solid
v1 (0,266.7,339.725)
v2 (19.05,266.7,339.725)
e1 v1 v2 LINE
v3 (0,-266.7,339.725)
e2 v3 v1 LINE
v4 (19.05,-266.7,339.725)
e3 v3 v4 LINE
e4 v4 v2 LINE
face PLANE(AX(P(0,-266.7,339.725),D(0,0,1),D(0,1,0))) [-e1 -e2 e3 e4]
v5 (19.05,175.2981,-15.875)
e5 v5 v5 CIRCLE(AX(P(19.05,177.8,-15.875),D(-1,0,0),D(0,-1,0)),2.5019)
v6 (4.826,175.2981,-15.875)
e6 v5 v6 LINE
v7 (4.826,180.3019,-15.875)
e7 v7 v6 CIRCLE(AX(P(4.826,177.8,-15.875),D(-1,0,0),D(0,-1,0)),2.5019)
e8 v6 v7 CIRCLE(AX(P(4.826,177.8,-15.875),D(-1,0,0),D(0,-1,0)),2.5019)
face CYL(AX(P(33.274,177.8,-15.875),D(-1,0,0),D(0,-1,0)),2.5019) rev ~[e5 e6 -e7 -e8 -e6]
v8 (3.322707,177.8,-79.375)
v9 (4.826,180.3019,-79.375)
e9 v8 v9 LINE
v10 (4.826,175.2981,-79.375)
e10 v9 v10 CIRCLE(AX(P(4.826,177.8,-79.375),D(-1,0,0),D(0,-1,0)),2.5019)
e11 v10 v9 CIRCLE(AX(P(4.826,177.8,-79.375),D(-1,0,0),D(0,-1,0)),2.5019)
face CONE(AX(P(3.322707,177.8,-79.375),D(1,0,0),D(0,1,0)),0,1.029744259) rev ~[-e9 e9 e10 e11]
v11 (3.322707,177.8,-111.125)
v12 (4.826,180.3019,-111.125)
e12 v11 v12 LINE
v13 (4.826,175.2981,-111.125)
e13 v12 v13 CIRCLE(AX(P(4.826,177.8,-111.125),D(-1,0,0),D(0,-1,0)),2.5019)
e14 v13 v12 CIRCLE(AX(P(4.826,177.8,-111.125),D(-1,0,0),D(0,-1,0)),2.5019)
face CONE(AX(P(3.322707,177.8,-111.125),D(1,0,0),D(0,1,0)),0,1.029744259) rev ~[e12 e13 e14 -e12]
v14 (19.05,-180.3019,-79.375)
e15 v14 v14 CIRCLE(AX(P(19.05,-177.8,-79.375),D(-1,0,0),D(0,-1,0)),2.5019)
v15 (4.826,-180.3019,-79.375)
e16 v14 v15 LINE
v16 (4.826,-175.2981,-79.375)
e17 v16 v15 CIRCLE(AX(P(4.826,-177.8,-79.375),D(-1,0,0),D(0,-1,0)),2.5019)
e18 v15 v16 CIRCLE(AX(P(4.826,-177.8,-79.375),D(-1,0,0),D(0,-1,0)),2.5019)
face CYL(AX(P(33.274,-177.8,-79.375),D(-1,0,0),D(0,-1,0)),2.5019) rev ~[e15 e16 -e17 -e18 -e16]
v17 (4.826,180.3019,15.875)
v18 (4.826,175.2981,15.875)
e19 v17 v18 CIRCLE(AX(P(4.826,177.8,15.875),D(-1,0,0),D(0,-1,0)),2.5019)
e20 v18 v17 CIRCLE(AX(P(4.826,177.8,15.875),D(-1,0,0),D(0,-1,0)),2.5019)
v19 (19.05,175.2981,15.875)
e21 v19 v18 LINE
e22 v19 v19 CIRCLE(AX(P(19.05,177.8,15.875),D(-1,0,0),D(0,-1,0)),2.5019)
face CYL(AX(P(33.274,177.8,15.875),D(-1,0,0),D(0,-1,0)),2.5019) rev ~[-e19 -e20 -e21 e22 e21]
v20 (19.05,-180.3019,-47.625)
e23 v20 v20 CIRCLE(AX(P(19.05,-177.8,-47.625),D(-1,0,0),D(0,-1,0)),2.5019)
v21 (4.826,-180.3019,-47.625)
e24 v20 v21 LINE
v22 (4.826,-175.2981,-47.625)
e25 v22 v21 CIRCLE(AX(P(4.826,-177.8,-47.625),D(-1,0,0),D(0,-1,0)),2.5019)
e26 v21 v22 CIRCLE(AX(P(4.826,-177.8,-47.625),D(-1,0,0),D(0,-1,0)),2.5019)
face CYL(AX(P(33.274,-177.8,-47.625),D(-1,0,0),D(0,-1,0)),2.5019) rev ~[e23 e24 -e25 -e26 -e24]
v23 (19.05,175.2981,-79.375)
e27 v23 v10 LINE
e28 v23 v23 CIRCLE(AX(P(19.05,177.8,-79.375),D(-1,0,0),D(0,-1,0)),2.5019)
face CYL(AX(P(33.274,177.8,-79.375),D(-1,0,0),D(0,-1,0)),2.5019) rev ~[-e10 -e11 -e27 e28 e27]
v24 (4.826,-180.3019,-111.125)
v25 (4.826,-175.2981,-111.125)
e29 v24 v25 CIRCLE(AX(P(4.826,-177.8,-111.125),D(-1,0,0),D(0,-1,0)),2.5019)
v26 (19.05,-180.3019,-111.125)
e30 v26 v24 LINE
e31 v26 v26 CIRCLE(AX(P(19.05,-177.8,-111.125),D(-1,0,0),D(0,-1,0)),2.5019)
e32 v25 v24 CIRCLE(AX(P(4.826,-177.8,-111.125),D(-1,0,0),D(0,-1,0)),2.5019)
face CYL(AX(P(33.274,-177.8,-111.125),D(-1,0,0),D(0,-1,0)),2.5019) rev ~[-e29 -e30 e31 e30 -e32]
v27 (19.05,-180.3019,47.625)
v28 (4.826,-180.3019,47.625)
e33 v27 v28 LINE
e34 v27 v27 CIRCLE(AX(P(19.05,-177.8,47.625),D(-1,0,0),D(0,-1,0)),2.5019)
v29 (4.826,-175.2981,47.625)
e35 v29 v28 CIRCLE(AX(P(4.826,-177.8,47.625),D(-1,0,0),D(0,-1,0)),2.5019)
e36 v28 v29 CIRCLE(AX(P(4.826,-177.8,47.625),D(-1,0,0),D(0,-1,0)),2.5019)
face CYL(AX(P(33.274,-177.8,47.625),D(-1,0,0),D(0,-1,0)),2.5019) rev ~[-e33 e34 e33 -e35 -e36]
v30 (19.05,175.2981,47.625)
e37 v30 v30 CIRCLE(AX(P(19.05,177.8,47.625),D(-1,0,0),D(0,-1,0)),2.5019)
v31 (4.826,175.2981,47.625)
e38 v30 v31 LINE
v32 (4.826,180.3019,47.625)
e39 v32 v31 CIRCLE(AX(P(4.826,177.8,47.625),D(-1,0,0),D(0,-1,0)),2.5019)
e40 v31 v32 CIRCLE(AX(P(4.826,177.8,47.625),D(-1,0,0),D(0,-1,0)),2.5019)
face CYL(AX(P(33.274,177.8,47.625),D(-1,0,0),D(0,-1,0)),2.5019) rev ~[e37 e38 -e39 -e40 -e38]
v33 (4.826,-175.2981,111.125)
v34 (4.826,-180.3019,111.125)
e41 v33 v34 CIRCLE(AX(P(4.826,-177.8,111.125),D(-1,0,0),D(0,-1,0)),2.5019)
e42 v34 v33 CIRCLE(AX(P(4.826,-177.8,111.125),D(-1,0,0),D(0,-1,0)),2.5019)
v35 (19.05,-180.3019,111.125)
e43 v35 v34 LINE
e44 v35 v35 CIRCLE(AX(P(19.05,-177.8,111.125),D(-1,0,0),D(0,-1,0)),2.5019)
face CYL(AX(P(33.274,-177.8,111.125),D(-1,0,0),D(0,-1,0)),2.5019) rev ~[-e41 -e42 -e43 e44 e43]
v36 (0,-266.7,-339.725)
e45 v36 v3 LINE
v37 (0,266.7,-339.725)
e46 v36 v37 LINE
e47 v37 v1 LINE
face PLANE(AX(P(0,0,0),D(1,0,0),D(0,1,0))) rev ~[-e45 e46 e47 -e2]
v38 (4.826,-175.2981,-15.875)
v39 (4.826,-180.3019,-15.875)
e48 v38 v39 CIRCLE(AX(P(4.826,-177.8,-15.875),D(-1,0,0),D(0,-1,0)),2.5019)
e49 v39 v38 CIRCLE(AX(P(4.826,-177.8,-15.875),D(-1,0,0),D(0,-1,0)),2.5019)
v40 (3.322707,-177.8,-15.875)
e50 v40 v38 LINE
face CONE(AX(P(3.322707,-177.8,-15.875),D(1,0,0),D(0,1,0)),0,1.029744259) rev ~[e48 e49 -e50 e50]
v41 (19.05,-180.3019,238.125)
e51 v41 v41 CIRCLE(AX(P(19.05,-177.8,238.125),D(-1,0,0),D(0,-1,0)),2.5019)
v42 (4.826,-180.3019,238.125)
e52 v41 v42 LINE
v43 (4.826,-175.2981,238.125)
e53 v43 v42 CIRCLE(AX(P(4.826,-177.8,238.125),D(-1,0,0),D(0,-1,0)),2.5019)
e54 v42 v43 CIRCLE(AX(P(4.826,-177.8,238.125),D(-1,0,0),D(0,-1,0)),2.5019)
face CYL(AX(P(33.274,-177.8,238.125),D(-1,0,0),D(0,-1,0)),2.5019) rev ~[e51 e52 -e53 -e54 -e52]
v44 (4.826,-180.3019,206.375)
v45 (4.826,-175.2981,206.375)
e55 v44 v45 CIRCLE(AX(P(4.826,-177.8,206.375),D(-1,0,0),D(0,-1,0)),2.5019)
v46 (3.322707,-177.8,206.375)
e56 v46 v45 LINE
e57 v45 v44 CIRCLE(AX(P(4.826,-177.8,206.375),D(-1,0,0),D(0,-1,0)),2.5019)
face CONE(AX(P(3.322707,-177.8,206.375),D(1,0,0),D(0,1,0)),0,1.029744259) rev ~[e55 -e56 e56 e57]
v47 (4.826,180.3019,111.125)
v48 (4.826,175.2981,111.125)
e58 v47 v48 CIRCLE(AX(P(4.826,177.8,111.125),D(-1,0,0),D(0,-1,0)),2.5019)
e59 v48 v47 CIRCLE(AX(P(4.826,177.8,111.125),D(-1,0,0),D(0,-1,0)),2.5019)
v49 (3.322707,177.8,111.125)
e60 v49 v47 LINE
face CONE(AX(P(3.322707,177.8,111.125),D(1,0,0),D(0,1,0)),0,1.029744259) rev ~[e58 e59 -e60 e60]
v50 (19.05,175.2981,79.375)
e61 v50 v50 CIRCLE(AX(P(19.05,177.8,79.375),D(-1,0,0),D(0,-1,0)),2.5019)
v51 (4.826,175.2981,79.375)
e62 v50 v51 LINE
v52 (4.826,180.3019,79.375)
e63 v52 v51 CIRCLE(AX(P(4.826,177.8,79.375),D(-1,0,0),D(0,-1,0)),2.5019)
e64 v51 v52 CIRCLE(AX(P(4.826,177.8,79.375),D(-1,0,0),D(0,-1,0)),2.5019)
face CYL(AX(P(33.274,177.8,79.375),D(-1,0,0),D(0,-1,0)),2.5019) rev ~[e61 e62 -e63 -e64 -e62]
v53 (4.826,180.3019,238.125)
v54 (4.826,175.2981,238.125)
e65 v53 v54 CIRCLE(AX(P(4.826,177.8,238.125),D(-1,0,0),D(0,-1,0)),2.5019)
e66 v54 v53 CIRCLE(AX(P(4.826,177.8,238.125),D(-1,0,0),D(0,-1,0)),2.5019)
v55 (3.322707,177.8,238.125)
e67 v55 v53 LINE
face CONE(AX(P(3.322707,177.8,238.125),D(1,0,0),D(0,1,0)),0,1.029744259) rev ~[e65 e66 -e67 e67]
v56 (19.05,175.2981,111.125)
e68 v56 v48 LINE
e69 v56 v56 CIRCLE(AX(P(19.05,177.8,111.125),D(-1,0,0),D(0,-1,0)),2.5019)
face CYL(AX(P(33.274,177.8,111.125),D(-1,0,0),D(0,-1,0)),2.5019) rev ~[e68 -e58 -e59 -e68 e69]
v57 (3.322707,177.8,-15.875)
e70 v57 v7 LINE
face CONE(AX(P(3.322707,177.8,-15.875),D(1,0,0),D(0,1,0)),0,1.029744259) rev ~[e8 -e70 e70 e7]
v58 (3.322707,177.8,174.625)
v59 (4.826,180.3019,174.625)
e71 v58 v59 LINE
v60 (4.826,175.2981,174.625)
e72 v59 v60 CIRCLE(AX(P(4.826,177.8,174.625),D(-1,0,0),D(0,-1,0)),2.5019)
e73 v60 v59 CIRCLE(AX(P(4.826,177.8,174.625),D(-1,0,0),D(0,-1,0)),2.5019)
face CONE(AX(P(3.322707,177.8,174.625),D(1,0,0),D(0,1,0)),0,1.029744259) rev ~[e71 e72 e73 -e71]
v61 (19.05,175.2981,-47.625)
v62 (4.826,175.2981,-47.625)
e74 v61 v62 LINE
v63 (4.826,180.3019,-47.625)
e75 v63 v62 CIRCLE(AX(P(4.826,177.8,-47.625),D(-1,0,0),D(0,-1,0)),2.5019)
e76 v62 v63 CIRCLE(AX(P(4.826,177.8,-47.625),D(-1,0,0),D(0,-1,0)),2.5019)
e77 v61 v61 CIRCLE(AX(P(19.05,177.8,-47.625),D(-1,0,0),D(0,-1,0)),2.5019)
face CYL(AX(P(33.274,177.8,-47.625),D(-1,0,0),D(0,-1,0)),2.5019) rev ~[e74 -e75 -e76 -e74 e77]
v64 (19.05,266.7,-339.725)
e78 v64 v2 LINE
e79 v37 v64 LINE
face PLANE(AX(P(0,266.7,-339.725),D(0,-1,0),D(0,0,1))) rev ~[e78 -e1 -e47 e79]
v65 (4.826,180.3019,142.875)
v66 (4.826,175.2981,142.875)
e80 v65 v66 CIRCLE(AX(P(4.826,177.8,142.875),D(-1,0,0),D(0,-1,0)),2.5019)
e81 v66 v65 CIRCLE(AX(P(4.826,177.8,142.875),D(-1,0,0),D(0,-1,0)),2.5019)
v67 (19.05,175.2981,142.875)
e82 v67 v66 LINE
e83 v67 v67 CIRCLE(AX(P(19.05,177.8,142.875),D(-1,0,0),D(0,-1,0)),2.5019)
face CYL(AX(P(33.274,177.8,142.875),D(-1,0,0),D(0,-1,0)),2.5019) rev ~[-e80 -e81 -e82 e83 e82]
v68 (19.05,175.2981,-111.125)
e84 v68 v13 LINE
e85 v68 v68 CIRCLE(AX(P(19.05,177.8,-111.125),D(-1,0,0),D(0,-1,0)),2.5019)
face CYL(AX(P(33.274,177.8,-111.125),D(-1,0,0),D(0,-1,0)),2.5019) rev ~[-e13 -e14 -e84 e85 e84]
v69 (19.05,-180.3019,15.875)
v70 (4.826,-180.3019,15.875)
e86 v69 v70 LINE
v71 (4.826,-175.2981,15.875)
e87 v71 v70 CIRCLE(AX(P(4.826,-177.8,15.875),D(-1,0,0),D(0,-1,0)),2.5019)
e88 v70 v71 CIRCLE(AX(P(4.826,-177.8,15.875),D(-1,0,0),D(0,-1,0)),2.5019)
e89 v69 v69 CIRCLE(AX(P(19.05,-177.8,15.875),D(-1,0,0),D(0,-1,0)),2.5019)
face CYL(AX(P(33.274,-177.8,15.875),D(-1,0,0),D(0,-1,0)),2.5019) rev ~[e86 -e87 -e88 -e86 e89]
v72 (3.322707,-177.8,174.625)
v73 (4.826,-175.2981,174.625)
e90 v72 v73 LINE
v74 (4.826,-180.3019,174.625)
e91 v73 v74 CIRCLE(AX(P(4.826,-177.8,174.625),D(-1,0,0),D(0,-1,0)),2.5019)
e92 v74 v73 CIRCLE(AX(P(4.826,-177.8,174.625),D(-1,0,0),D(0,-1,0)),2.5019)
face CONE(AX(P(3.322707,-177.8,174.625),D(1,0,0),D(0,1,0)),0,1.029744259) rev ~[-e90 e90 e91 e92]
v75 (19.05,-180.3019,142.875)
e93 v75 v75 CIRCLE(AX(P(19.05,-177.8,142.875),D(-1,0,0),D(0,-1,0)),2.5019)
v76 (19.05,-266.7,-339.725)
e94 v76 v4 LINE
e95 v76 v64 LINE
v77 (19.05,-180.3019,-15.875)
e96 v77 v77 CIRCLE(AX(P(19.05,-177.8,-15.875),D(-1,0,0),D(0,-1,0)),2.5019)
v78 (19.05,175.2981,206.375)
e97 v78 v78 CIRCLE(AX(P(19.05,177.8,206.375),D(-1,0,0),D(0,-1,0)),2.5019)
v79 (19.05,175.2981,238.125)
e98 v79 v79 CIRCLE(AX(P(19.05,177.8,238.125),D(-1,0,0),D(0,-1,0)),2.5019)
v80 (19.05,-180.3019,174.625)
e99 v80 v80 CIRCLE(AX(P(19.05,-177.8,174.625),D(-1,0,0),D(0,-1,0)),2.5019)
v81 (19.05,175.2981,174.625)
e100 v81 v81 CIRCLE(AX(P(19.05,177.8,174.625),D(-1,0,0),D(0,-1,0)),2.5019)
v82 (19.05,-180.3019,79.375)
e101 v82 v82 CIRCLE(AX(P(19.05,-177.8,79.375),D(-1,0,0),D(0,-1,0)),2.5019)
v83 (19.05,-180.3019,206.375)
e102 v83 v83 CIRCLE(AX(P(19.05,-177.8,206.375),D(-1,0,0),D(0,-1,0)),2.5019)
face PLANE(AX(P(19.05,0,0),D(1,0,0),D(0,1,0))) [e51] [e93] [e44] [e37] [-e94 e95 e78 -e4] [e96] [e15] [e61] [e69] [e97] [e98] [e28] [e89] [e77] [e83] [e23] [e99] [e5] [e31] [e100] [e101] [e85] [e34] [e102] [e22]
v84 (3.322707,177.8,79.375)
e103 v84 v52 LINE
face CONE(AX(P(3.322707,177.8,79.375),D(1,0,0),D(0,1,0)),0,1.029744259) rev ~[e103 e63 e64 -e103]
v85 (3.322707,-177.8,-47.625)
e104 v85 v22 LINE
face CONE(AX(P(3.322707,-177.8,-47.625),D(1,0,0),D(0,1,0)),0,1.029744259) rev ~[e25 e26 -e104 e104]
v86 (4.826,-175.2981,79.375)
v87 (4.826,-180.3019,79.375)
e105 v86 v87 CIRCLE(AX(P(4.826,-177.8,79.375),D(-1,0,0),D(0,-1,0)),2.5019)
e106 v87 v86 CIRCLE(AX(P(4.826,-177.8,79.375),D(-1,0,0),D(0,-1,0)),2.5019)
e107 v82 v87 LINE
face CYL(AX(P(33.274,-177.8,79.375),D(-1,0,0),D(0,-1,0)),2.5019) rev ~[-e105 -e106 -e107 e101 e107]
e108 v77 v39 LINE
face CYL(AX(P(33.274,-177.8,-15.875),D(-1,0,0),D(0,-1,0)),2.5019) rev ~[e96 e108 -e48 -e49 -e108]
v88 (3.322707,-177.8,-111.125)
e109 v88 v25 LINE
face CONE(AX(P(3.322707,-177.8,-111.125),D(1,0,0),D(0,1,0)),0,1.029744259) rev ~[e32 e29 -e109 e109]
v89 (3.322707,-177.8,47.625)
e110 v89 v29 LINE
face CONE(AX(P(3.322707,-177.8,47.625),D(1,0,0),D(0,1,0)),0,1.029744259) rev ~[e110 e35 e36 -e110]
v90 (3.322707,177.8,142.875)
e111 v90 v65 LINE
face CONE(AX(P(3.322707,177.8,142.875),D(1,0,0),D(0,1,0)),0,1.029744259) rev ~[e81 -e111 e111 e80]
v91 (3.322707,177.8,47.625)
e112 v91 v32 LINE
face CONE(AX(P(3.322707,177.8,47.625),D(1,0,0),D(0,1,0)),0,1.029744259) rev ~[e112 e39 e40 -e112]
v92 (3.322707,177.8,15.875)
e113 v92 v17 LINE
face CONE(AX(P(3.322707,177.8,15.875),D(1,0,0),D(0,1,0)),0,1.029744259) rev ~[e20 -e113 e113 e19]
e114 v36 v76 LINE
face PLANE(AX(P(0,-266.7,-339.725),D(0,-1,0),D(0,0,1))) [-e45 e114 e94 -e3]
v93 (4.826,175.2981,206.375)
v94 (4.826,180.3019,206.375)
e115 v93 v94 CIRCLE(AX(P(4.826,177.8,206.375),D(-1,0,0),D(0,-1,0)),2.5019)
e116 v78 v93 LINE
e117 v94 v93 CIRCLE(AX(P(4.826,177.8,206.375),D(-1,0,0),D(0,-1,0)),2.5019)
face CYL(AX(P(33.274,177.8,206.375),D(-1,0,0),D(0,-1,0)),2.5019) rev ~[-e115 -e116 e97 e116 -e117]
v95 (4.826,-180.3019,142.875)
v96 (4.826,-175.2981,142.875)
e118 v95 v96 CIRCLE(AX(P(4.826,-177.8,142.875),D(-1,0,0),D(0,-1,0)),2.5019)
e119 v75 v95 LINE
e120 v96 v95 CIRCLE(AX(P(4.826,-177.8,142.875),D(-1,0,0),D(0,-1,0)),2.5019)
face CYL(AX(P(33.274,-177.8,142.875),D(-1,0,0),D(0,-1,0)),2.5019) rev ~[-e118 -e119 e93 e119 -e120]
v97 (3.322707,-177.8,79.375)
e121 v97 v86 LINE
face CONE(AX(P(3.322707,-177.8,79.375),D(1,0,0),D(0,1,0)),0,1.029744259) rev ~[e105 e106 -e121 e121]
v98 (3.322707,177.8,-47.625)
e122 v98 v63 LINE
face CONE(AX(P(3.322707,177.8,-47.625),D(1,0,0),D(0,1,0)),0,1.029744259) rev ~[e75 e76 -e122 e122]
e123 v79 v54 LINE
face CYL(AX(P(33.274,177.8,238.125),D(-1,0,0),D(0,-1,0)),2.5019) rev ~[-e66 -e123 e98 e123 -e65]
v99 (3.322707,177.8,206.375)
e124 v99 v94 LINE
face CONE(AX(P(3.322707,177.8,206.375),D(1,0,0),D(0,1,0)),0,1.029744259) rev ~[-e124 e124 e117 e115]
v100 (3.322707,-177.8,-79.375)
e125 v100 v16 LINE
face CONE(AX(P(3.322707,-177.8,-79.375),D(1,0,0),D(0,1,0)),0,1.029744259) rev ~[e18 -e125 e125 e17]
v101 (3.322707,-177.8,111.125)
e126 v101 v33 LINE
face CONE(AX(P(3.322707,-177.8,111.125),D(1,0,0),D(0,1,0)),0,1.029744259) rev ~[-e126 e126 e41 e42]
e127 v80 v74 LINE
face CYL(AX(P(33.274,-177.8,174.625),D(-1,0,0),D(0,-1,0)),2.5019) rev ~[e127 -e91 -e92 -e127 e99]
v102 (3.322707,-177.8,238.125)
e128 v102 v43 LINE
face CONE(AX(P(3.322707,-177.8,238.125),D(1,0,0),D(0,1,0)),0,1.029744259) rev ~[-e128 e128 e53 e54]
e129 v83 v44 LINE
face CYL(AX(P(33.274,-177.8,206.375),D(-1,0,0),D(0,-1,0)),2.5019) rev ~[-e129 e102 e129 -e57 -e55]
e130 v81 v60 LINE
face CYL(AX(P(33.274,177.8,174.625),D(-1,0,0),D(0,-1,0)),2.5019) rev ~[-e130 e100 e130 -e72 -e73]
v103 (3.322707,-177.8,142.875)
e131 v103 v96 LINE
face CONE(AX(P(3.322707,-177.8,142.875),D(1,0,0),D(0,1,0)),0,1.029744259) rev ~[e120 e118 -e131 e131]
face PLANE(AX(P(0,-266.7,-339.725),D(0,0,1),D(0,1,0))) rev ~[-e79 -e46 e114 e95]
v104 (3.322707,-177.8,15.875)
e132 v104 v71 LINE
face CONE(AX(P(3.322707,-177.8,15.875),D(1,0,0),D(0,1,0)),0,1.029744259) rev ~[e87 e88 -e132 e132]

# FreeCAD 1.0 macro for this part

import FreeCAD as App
import Part
import Sketcher
Q = App.Units.Quantity

doc = App.newDocument("Part")
body = doc.addObject("PartDesign::Body", "Body")

sketch1 = body.newObject("Sketcher::SketchObject", "Sketch")
sketch1.AttachmentSupport = (doc.getObject("YZ_Plane"), [""])
sketch1.MapMode = "FlatFace"
sketch1.addGeometry([
    Part.LineSegment(App.Vector(-267, 340, 0), App.Vector(-267, -340, 0)),
    Part.LineSegment(App.Vector(-267, -340, 0), App.Vector(267, -340, 0)),
    Part.LineSegment(App.Vector(267, -340, 0), App.Vector(267, 340, 0)),
    Part.LineSegment(App.Vector(267, 340, 0), App.Vector(-267, 340, 0)),
], False)
sketch1.addConstraint([
    Sketcher.Constraint("Coincident", 0, 2, 1, 1),
    Sketcher.Constraint("Coincident", 1, 2, 2, 1),
    Sketcher.Constraint("Coincident", 2, 2, 3, 1),
    Sketcher.Constraint("Coincident", 3, 2, 0, 1),
    Sketcher.Constraint("Vertical", 0),
    Sketcher.Constraint("Horizontal", 1),
    Sketcher.Constraint("Vertical", 2),
    Sketcher.Constraint("Horizontal", 3),
    Sketcher.Constraint("Symmetric", 0, 2, 2, 2, -1, 1),
    Sketcher.Constraint("DistanceX", 1, 1, 1, 2, Q("21 in")),
    Sketcher.Constraint("DistanceY", 0, 2, 0, 1, Q("26.75 in")),
])
pad1 = body.newObject("PartDesign::Pad", "Pad")
pad1.Profile = sketch1
pad1.Length = Q("0.75 in")

sketch2 = body.newObject("Sketcher::SketchObject", "Sketch001")
sketch2.AttachmentSupport = (doc.getObject("YZ_Plane"), [""])
sketch2.MapMode = "FlatFace"
sketch2.AttachmentOffset = App.Placement(App.Vector(0, 0, 0.75 * 25.4), App.Rotation())
sketch2.addGeometry([
    Part.Circle(App.Vector(-177.8, 238.1, 0), App.Vector(0, 0, 1), 2.5),
    Part.Circle(App.Vector(-177.8, 206.4, 0), App.Vector(0, 0, 1), 2.5),
    Part.Circle(App.Vector(-177.8, 174.6, 0), App.Vector(0, 0, 1), 2.5),
    Part.Circle(App.Vector(-177.8, 142.9, 0), App.Vector(0, 0, 1), 2.5),
    Part.Circle(App.Vector(-177.8, 111.1, 0), App.Vector(0, 0, 1), 2.5),
    Part.Circle(App.Vector(-177.8, 79.4, 0), App.Vector(0, 0, 1), 2.5),
    Part.Circle(App.Vector(-177.8, 47.6, 0), App.Vector(0, 0, 1), 2.5),
    Part.Circle(App.Vector(-177.8, 15.9, 0), App.Vector(0, 0, 1), 2.5),
    Part.Circle(App.Vector(-177.8, -15.9, 0), App.Vector(0, 0, 1), 2.5),
    Part.Circle(App.Vector(-177.8, -47.6, 0), App.Vector(0, 0, 1), 2.5),
    Part.Circle(App.Vector(-177.8, -79.4, 0), App.Vector(0, 0, 1), 2.5),
    Part.Circle(App.Vector(-177.8, -111.1, 0), App.Vector(0, 0, 1), 2.5),
    Part.Circle(App.Vector(177.8, 238.1, 0), App.Vector(0, 0, 1), 2.5),
    Part.Circle(App.Vector(177.8, 206.4, 0), App.Vector(0, 0, 1), 2.5),
    Part.Circle(App.Vector(177.8, 174.6, 0), App.Vector(0, 0, 1), 2.5),
    Part.Circle(App.Vector(177.8, 142.9, 0), App.Vector(0, 0, 1), 2.5),
    Part.Circle(App.Vector(177.8, 111.1, 0), App.Vector(0, 0, 1), 2.5),
    Part.Circle(App.Vector(177.8, 79.4, 0), App.Vector(0, 0, 1), 2.5),
    Part.Circle(App.Vector(177.8, 47.6, 0), App.Vector(0, 0, 1), 2.5),
    Part.Circle(App.Vector(177.8, 15.9, 0), App.Vector(0, 0, 1), 2.5),
    Part.Circle(App.Vector(177.8, -15.9, 0), App.Vector(0, 0, 1), 2.5),
    Part.Circle(App.Vector(177.8, -47.6, 0), App.Vector(0, 0, 1), 2.5),
    Part.Circle(App.Vector(177.8, -79.4, 0), App.Vector(0, 0, 1), 2.5),
    Part.Circle(App.Vector(177.8, -111.1, 0), App.Vector(0, 0, 1), 2.5),
], False)
sketch2.addConstraint([
    Sketcher.Constraint("Equal", 0, 1),
    Sketcher.Constraint("Equal", 1, 2),
    Sketcher.Constraint("Equal", 2, 3),
    Sketcher.Constraint("Equal", 3, 4),
    Sketcher.Constraint("Equal", 4, 5),
    Sketcher.Constraint("Equal", 5, 6),
    Sketcher.Constraint("Equal", 6, 7),
    Sketcher.Constraint("Equal", 7, 8),
    Sketcher.Constraint("Equal", 8, 9),
    Sketcher.Constraint("Equal", 9, 10),
    Sketcher.Constraint("Equal", 10, 11),
    Sketcher.Constraint("Equal", 11, 12),
    Sketcher.Constraint("Equal", 12, 13),
    Sketcher.Constraint("Equal", 13, 14),
    Sketcher.Constraint("Equal", 14, 15),
    Sketcher.Constraint("Equal", 15, 16),
    Sketcher.Constraint("Equal", 16, 17),
    Sketcher.Constraint("Equal", 17, 18),
    Sketcher.Constraint("Equal", 18, 19),
    Sketcher.Constraint("Equal", 19, 20),
    Sketcher.Constraint("Equal", 20, 21),
    Sketcher.Constraint("Equal", 21, 22),
    Sketcher.Constraint("Equal", 22, 23),
    Sketcher.Constraint("Symmetric", 11, 3, 16, 3, -1, 1),
    Sketcher.Constraint("Symmetric", 10, 3, 17, 3, -1, 1),
    Sketcher.Constraint("Symmetric", 9, 3, 18, 3, -1, 1),
    Sketcher.Constraint("Symmetric", 8, 3, 19, 3, -1, 1),
    Sketcher.Constraint("Symmetric", 7, 3, 20, 3, -1, 1),
    Sketcher.Constraint("Symmetric", 6, 3, 21, 3, -1, 1),
    Sketcher.Constraint("Symmetric", 5, 3, 22, 3, -1, 1),
    Sketcher.Constraint("Symmetric", 4, 3, 23, 3, -1, 1),
    Sketcher.Constraint("Symmetric", 0, 3, 12, 3, -2),
    Sketcher.Constraint("Symmetric", 1, 3, 13, 3, -2),
    Sketcher.Constraint("Symmetric", 2, 3, 14, 3, -2),
    Sketcher.Constraint("Symmetric", 3, 3, 15, 3, -2),
    Sketcher.Constraint("Symmetric", 4, 3, 16, 3, -2),
    Sketcher.Constraint("Symmetric", 5, 3, 17, 3, -2),
    Sketcher.Constraint("Symmetric", 6, 3, 18, 3, -2),
    Sketcher.Constraint("Symmetric", 7, 3, 19, 3, -2),
    Sketcher.Constraint("Vertical", 0, 3, 1, 3),
    Sketcher.Constraint("Vertical", 1, 3, 2, 3),
    Sketcher.Constraint("Vertical", 2, 3, 3, 3),
    Sketcher.Constraint("Vertical", 3, 3, 4, 3),
    Sketcher.Constraint("Vertical", 4, 3, 5, 3),
    Sketcher.Constraint("Vertical", 5, 3, 6, 3),
    Sketcher.Constraint("Vertical", 6, 3, 7, 3),
    Sketcher.Constraint("Diameter", 0, Q("0.197 in")),
    Sketcher.Constraint("DistanceX", 0, 3, -1, 1, Q("7 in")),
    Sketcher.Constraint("DistanceY", 4, 3, 0, 3, Q("5 in")),
    Sketcher.Constraint("DistanceY", 5, 3, 1, 3, Q("5 in")),
    Sketcher.Constraint("DistanceY", 6, 3, 2, 3, Q("5 in")),
    Sketcher.Constraint("DistanceY", 7, 3, 3, 3, Q("5 in")),
    Sketcher.Constraint("DistanceY", 8, 3, 4, 3, Q("5 in")),
    Sketcher.Constraint("DistanceY", 9, 3, 5, 3, Q("5 in")),
    Sketcher.Constraint("DistanceY", 2, 3, 0, 3, Q("2.5 in")),
    Sketcher.Constraint("DistanceY", 1, 3, 0, 3, Q("1.25 in")),
])
doc.recompute()
hole = body.newObject("PartDesign::Hole", "Hole")
hole.Profile = sketch2
hole.ThreadType = "None"
hole.Diameter = Q("0.197 in")
hole.DepthType = "Dimension"
hole.Depth = Q("0.56 in")
hole.DrillPoint = "Angled"
hole.DrillPointAngle = 118

doc.recompute()
